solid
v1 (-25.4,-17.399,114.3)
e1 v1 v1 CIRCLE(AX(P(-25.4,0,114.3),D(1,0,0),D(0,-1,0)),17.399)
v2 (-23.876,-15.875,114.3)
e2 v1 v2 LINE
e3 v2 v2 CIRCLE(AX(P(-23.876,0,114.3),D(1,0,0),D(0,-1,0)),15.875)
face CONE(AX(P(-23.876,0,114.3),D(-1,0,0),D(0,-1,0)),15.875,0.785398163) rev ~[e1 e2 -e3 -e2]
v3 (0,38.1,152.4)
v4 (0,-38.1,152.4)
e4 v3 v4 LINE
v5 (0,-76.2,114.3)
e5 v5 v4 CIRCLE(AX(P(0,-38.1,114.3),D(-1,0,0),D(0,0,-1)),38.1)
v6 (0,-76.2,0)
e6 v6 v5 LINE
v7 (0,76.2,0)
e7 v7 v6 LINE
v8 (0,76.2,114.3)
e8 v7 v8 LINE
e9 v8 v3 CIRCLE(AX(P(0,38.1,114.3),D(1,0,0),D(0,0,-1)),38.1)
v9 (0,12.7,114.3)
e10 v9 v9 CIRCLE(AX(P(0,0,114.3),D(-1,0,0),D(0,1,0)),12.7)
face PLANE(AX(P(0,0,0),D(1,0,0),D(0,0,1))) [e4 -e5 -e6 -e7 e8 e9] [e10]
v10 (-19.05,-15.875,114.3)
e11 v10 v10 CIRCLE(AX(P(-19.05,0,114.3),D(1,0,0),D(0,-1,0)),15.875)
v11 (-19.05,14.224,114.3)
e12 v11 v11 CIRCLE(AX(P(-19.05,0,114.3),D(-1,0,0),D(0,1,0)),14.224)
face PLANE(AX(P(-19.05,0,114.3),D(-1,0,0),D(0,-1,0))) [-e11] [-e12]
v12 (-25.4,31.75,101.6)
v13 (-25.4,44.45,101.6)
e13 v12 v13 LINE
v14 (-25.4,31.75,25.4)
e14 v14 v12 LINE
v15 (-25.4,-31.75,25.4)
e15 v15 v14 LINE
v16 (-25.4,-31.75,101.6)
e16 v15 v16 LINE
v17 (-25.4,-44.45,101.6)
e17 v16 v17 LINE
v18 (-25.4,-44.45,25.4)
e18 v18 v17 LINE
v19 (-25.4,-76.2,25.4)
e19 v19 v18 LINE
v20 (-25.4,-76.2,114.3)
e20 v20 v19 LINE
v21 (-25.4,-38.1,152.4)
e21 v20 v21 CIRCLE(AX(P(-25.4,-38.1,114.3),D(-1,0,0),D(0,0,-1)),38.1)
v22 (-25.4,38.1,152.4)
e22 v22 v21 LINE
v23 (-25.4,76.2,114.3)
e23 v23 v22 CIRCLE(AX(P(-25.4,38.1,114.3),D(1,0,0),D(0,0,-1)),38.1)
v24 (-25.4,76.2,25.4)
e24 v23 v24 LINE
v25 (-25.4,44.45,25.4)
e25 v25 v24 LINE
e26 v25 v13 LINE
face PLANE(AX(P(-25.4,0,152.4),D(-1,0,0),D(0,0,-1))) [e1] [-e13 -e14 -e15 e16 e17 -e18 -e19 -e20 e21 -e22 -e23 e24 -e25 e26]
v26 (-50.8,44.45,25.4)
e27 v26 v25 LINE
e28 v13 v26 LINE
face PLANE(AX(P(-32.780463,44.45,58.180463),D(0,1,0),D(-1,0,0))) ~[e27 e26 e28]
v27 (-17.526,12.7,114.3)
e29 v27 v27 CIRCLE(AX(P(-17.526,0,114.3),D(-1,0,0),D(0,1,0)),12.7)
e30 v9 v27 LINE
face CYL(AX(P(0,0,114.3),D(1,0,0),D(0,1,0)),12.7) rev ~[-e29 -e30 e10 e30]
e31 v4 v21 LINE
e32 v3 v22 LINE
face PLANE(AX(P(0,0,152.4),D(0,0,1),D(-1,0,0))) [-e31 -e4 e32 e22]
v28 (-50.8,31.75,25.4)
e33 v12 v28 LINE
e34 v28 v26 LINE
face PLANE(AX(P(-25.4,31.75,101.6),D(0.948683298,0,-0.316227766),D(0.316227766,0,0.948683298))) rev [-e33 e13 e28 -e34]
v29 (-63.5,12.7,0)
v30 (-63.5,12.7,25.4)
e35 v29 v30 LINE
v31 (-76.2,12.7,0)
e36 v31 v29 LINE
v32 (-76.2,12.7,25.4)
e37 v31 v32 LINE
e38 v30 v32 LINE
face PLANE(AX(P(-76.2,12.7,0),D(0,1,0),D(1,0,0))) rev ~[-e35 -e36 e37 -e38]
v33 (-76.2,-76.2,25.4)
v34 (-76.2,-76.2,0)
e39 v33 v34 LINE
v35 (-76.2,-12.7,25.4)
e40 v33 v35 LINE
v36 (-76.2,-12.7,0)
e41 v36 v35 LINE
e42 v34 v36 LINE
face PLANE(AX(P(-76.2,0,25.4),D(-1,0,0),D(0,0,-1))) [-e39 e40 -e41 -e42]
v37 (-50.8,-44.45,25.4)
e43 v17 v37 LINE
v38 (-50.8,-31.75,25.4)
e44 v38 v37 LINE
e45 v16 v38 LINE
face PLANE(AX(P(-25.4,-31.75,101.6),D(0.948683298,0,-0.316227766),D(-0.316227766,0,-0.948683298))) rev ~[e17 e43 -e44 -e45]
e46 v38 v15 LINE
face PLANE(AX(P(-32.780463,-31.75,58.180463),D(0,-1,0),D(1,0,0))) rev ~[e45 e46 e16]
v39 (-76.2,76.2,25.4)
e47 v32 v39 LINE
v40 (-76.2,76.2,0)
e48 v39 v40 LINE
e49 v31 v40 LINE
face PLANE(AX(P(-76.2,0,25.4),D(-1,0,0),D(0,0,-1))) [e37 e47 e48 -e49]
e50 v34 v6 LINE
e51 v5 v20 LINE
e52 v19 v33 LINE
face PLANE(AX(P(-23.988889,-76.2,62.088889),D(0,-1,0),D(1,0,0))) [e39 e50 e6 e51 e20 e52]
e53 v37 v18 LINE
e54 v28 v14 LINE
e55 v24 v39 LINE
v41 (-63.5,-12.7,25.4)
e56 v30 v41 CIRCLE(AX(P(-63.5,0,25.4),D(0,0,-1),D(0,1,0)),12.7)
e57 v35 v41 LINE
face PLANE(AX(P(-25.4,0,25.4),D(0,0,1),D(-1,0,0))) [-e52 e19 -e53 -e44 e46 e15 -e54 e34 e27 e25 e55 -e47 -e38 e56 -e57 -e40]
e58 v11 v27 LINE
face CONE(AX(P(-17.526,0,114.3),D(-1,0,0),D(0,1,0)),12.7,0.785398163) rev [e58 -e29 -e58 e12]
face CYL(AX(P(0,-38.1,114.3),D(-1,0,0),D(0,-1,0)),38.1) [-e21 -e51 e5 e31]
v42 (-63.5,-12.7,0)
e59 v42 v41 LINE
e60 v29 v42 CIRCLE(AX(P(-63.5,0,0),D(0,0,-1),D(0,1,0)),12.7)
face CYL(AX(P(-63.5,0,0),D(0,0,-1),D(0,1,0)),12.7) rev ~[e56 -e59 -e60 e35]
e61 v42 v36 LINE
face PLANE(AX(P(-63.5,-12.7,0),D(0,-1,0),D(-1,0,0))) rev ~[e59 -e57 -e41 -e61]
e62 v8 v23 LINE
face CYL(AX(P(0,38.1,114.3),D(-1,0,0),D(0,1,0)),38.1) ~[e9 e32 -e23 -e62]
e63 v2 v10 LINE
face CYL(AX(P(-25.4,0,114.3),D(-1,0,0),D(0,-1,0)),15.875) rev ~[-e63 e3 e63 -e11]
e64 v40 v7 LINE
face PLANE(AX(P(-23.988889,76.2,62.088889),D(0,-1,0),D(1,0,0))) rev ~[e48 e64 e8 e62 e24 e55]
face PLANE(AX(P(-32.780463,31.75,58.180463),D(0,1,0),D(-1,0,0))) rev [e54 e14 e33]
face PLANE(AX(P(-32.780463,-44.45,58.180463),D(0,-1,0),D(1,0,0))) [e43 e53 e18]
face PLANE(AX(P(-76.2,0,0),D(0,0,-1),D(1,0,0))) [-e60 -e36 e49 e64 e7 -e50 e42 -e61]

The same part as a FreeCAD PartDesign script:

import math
import FreeCAD as App
import Part
import Sketcher

V = App.Vector
Q = App.Units.Quantity


def edges_at(feature, points):
    """Names of the edges that pass closest to the given points."""
    edges = feature.Shape.Edges
    near = lambda p: min(range(len(edges)), key=lambda i: edges[i].distToShape(Part.Vertex(*p))[0])
    return sorted({f"Edge{near(p) + 1}" for p in points})


def add_polygon(sketch, points):
    """Adds a closed chain of lines whose ends are joined by coincident constraints."""
    first, n = sketch.GeometryCount, len(points)
    for a, b in zip(points, points[1:] + points[:1]):
        sketch.addGeometry(Part.LineSegment(App.Vector(*a, 0), App.Vector(*b, 0)), False)
    for i in range(n):
        sketch.addConstraint(Sketcher.Constraint("Coincident", first + i, 2, first + (i + 1) % n, 1))

doc = App.newDocument("Part")
body = doc.addObject("PartDesign::Body", "Body")

sketch1 = body.newObject("Sketcher::SketchObject", "Sketch")
sketch1.AttachmentSupport = (doc.getObject("XZ_Plane"), [""])
sketch1.MapMode = "FlatFace"
add_polygon(sketch1, [(-76, 0), (0, 0), (0, 152), (-25, 152), (-25, 25), (-76, 25)])
sketch1.addConstraint([
    Sketcher.Constraint("Horizontal", 0),
    Sketcher.Constraint("Vertical", 1),
    Sketcher.Constraint("Horizontal", 2),
    Sketcher.Constraint("Vertical", 3),
    Sketcher.Constraint("Horizontal", 4),
    Sketcher.Constraint("Vertical", 5),
    Sketcher.Constraint("Coincident", 0, 2, -1, 1),
    Sketcher.Constraint("Equal", 2, 5),
    Sketcher.Constraint("DistanceX", 0, 1, 0, 2, Q("3 in")),
    Sketcher.Constraint("DistanceX", 2, 2, 2, 1, Q("1 in")),
    Sketcher.Constraint("DistanceY", 1, 1, 1, 2, Q("6 in")),
])
pad1 = body.newObject("PartDesign::Pad", "Pad")
pad1.Profile = sketch1
pad1.Length = Q("6 in")
pad1.Midplane = True

sketch2 = body.newObject("Sketcher::SketchObject", "Sketch001")
sketch2.AttachmentSupport = (doc.getObject("YZ_Plane"), [""])
sketch2.MapMode = "FlatFace"
sketch2.addGeometry(Part.Circle(V(0, 114, 0), V(0, 0, 1), 13), False)
sketch2.addConstraint([
    Sketcher.Constraint("PointOnObject", 0, 3, -2),
    Sketcher.Constraint("Diameter", 0, Q("1 in")),
    Sketcher.Constraint("DistanceY", -1, 1, 0, 3, Q("4.5 in")),
])
pocket1 = body.newObject("PartDesign::Pocket", "Pocket")
pocket1.Profile = sketch2
pocket1.Type = "ThroughAll"

sketch3 = body.newObject("Sketcher::SketchObject", "Sketch002")
sketch3.AttachmentSupport = (doc.getObject("XY_Plane"), [""])
sketch3.MapMode = "FlatFace"
sketch3.addGeometry([
    Part.LineSegment(V(-76, -13, 0), V(-76, 13, 0)),
    Part.LineSegment(V(-76, 13, 0), V(-64, 13, 0)),
    Part.ArcOfCircle(Part.Circle(V(-64, 0, 0), V(0, 0, 1), 13), math.radians(-90), math.radians(90)),
    Part.LineSegment(V(-64, -13, 0), V(-76, -13, 0)),
], False)
sketch3.addConstraint([
    Sketcher.Constraint("Coincident", 0, 2, 1, 1),
    Sketcher.Constraint("Tangent", 1, 2, 2, 2),
    Sketcher.Constraint("Tangent", 2, 1, 3, 1),
    Sketcher.Constraint("Coincident", 3, 2, 0, 1),
    Sketcher.Constraint("Vertical", 0),
    Sketcher.Constraint("Horizontal", 1),
    Sketcher.Constraint("Horizontal", 3),
    Sketcher.Constraint("PointOnObject", 2, 3, -1),
    Sketcher.Constraint("Radius", 2, Q("0.5 in")),
    Sketcher.Constraint("DistanceX", 1, 1, 1, 2, Q("0.5 in")),
    Sketcher.Constraint("DistanceX", 0, 2, -1, 1, Q("3 in")),
])
pocket2 = body.newObject("PartDesign::Pocket", "Pocket001")
pocket2.Profile = sketch3
pocket2.Type = "ThroughAll"
pocket2.Reversed = True
doc.recompute()

fillet = body.newObject("PartDesign::Fillet", "Fillet")
fillet.Base = (pocket2, edges_at(pocket2, [(-12.7, 76.2, 152.4), (-12.7, -76.2, 152.4)]))
fillet.Radius = Q("1.5 in")

sketch4 = body.newObject("Sketcher::SketchObject", "Sketch003")
sketch4.AttachmentSupport = (doc.getObject("YZ_Plane"), [""])
sketch4.MapMode = "FlatFace"
sketch4.AttachmentOffset = App.Placement(V(0, 0, -1 * 25.4), App.Rotation())
sketch4.addGeometry(Part.Circle(V(0, 114, 0), V(0, 0, 1), 16), False)
sketch4.addConstraint([
    Sketcher.Constraint("PointOnObject", 0, 3, -2),
    Sketcher.Constraint("Diameter", 0, Q("1.25 in")),
    Sketcher.Constraint("DistanceY", -1, 1, 0, 3, Q("4.5 in")),
])
pocket3 = body.newObject("PartDesign::Pocket", "Pocket002")
pocket3.Profile = sketch4
pocket3.Length = Q("0.25 in")
pocket3.Reversed = True

sketch5 = body.newObject("Sketcher::SketchObject", "Sketch004")
sketch5.AttachmentSupport = (doc.getObject("XZ_Plane"), [""])
sketch5.MapMode = "FlatFace"
sketch5.AttachmentOffset = App.Placement(V(0, 0, 1.25 * 25.4), App.Rotation())
add_polygon(sketch5, [(-25, 102), (-51, 25), (-25, 25)])
sketch5.addConstraint([
    Sketcher.Constraint("Horizontal", 1),
    Sketcher.Constraint("Vertical", 2),
    Sketcher.Constraint("DistanceX", 1, 1, 1, 2, Q("1 in")),
    Sketcher.Constraint("DistanceY", 2, 1, 2, 2, Q("3 in")),
    Sketcher.Constraint("DistanceX", 0, 2, -1, 1, Q("2 in")),
    Sketcher.Constraint("DistanceY", -1, 1, 0, 2, Q("1 in")),
])
pad2 = body.newObject("PartDesign::Pad", "Pad001")
pad2.Profile = sketch5
pad2.Length = Q("0.5 in")
body2 = doc.addObject("PartDesign::Body", "Body001")
doc.recompute()

body2.BaseFeature = body
doc.recompute()

mirroring = doc.addObject("Part::Mirroring", "Mirroring")
mirroring.Source = body
mirroring.Base = V(0, 0, 0)
mirroring.Normal = V(0, -1, 0)
body3 = doc.addObject("PartDesign::Body", "Body002")
body3.BaseFeature = mirroring
boolean = body2.newObject("PartDesign::Boolean", "Boolean")
boolean.Type = "Fuse"
boolean.addObjects([body3])
doc.recompute()

chamfer = body2.newObject("PartDesign::Chamfer", "Chamfer")
chamfer.Base = (boolean, edges_at(boolean, [(-25.4, 15.875, 114.3), (-19.05, -12.7, 114.3)]))
chamfer.Size = Q("0.06 in")
mirroring.Visibility = False

doc.recompute()
